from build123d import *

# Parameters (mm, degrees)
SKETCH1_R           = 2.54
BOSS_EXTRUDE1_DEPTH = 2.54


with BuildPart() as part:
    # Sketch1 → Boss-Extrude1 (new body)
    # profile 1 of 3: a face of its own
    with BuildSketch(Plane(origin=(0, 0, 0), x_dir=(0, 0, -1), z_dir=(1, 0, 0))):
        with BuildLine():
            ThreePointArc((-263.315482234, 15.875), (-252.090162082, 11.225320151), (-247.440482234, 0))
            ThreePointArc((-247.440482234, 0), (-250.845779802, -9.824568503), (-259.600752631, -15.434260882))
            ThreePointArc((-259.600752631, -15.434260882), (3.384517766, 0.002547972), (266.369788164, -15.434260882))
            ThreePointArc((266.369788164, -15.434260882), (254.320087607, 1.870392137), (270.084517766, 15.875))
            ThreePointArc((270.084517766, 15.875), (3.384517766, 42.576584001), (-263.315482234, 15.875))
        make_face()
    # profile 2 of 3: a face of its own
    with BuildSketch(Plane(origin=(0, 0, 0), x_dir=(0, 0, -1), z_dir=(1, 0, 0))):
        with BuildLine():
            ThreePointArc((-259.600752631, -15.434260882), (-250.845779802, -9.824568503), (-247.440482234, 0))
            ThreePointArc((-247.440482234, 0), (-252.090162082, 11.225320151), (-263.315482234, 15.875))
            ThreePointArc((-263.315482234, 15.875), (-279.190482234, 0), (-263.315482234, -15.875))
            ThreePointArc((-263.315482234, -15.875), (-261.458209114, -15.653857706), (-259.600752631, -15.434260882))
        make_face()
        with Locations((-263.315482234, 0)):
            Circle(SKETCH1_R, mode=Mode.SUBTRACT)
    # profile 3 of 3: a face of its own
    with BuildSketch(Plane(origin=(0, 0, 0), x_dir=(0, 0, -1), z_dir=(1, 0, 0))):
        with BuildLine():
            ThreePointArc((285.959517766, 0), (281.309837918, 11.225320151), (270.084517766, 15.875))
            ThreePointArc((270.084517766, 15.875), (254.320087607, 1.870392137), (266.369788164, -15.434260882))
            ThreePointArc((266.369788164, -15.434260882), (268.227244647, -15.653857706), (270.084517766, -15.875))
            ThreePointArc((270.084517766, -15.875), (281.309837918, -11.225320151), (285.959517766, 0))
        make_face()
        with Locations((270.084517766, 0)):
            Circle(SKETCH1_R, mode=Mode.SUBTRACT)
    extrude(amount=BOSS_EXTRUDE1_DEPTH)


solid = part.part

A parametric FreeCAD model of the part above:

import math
import FreeCAD as App
import Part
import Sketcher
Q = App.Units.Quantity

doc = App.newDocument("Part")
params = doc.addObject("Spreadsheet::Sheet", "Params")
for row, (alias, value) in enumerate([
    ("sketch1_diameter", "0.2 in"),
    ("sketch1_radius", "0.625 in"),
    ("pad1_length", "0.1 in"),
], start=1):
    params.set(f"A{row}", alias)
    params.set(f"B{row}", "=" + value)
    params.setAlias(f"B{row}", alias)

body = doc.addObject("PartDesign::Body", "Body")

# Sketch on YZ plane
sketch1 = doc.addObject("Sketcher::SketchObject", "Sketch")
body.addObject(sketch1)
sketch1.AttachmentSupport = (doc.YZ_Plane, [""])
sketch1.MapMode = "FlatFace"
sketch1.addGeometry(Part.ArcOfCircle(Part.Circle(App.Vector(-2247.9, -3.4, 0), App.Vector(0, 0, 1), 2247.9), math.radians(-6.72), math.radians(6.72)), False)
sketch1.addGeometry(Part.ArcOfCircle(Part.Circle(App.Vector(-2247.9, -3.4, 0), App.Vector(0, 0, 1), 2247.9), math.radians(-6.81), math.radians(-6.72)), False)
sketch1.addGeometry(Part.ArcOfCircle(Part.Circle(App.Vector(0, -270.1, 0), App.Vector(0, 0, 1), 15.9), math.radians(180), math.radians(270)), False)
sketch1.addGeometry(Part.ArcOfCircle(Part.Circle(App.Vector(0, -270.1, 0), App.Vector(0, 0, 1), 15.9), math.radians(-90), math.radians(0)), False)
sketch1.addGeometry(Part.ArcOfCircle(Part.Circle(App.Vector(-1302.7, -3.4, 0), App.Vector(0, 0, 1), 1345.3), math.radians(-11), math.radians(11)), False)
sketch1.addGeometry(Part.ArcOfCircle(Part.Circle(App.Vector(0, 263.3, 0), App.Vector(0, 0, 1), 15.9), math.radians(0), math.radians(180)), False)
sketch1.addGeometry(Part.ArcOfCircle(Part.Circle(App.Vector(-2247.9, -3.4, 0), App.Vector(0, 0, 1), 2247.9), math.radians(6.72), math.radians(6.81)), False)
sketch1.addGeometry(Part.Circle(App.Vector(0, 263.3, 0), App.Vector(0, 0, 1), 2.5), False)
sketch1.addGeometry(Part.Circle(App.Vector(0, -270.1, 0), App.Vector(0, 0, 1), 2.5), False)
sketch1.addConstraint(Sketcher.Constraint("Coincident", 0, 1, 1, 2))
sketch1.addConstraint(Sketcher.Constraint("Coincident", 1, 1, 2, 1))
sketch1.addConstraint(Sketcher.Constraint("Tangent", 2, 2, 3, 1))
sketch1.addConstraint(Sketcher.Constraint("Coincident", 3, 2, 4, 1))
sketch1.addConstraint(Sketcher.Constraint("Coincident", 4, 2, 5, 1))
sketch1.addConstraint(Sketcher.Constraint("Coincident", 5, 2, 6, 2))
sketch1.addConstraint(Sketcher.Constraint("Coincident", 6, 1, 0, 2))
sketch1.addConstraint(Sketcher.Constraint("Coincident", 7, 3, 5, 3))
sketch1.addConstraint(Sketcher.Constraint("Coincident", 8, 3, 2, 3))
sketch1.addConstraint(Sketcher.Constraint("Equal", 2, 3))
sketch1.addConstraint(Sketcher.Constraint("Equal", 3, 5))
sketch1.addConstraint(Sketcher.Constraint("Equal", 7, 8))
sketch1.addConstraint(Sketcher.Constraint("Symmetric", 1, 1, 3, 2, -2))
sketch1.addConstraint(Sketcher.Constraint("Symmetric", 4, 2, 5, 2, -2))
sketch1.addConstraint(Sketcher.Constraint("PointOnObject", 2, 2, -2))
sketch1.addConstraint(Sketcher.Constraint("Horizontal", 0, 3, 4, 3))
sketch1.addConstraint(Sketcher.Constraint("Horizontal", 7, 3, 4, 2))
sketch1.addConstraint(Sketcher.Constraint("Vertical", 0, 1, 6, 1))
sketch1.addConstraint(Sketcher.Constraint("Diameter", 7, Q("0.2 in")))
sketch1.addConstraint(Sketcher.Constraint("Radius", 2, Q("0.625 in")))
sketch1.addConstraint(Sketcher.Constraint("DistanceY", 2, 3, 5, 3, Q("21 in")))
sketch1.addConstraint(Sketcher.Constraint("DistanceY", 2, 3, 0, 3, Q("10.5 in")))
sketch1.addConstraint(Sketcher.Constraint("Radius", 0, Q("2247.859262 mm")))
sketch1.addConstraint(Sketcher.Constraint("Radius", 4, Q("1345.27346 mm")))
sketch1.addConstraint(Sketcher.Constraint("Radius", 1, Q("2247.860663 mm")))
sketch1.addConstraint(Sketcher.Constraint("Radius", 6, Q("2247.860836 mm")))
sketch1.addConstraint(Sketcher.Constraint("DistanceX", 6, 3, 4, 3, Q("945.161401 mm")))
sketch1.addConstraint(Sketcher.Constraint("DistanceX", 0, 1, -1, 1, Q("15.434261 mm")))
sketch1.addConstraint(Sketcher.Constraint("DistanceY", 0, 3, -1, 1, Q("3.384518 mm")))
sketch1.setExpression("Constraints[18]", "Params.sketch1_diameter")
sketch1.setExpression("Constraints[19]", "Params.sketch1_radius")
pad1 = doc.addObject("PartDesign::Pad", "Pad")
body.addObject(pad1)
pad1.Profile = sketch1
pad1.setExpression("Length", "Params.pad1_length")

doc.recompute()
